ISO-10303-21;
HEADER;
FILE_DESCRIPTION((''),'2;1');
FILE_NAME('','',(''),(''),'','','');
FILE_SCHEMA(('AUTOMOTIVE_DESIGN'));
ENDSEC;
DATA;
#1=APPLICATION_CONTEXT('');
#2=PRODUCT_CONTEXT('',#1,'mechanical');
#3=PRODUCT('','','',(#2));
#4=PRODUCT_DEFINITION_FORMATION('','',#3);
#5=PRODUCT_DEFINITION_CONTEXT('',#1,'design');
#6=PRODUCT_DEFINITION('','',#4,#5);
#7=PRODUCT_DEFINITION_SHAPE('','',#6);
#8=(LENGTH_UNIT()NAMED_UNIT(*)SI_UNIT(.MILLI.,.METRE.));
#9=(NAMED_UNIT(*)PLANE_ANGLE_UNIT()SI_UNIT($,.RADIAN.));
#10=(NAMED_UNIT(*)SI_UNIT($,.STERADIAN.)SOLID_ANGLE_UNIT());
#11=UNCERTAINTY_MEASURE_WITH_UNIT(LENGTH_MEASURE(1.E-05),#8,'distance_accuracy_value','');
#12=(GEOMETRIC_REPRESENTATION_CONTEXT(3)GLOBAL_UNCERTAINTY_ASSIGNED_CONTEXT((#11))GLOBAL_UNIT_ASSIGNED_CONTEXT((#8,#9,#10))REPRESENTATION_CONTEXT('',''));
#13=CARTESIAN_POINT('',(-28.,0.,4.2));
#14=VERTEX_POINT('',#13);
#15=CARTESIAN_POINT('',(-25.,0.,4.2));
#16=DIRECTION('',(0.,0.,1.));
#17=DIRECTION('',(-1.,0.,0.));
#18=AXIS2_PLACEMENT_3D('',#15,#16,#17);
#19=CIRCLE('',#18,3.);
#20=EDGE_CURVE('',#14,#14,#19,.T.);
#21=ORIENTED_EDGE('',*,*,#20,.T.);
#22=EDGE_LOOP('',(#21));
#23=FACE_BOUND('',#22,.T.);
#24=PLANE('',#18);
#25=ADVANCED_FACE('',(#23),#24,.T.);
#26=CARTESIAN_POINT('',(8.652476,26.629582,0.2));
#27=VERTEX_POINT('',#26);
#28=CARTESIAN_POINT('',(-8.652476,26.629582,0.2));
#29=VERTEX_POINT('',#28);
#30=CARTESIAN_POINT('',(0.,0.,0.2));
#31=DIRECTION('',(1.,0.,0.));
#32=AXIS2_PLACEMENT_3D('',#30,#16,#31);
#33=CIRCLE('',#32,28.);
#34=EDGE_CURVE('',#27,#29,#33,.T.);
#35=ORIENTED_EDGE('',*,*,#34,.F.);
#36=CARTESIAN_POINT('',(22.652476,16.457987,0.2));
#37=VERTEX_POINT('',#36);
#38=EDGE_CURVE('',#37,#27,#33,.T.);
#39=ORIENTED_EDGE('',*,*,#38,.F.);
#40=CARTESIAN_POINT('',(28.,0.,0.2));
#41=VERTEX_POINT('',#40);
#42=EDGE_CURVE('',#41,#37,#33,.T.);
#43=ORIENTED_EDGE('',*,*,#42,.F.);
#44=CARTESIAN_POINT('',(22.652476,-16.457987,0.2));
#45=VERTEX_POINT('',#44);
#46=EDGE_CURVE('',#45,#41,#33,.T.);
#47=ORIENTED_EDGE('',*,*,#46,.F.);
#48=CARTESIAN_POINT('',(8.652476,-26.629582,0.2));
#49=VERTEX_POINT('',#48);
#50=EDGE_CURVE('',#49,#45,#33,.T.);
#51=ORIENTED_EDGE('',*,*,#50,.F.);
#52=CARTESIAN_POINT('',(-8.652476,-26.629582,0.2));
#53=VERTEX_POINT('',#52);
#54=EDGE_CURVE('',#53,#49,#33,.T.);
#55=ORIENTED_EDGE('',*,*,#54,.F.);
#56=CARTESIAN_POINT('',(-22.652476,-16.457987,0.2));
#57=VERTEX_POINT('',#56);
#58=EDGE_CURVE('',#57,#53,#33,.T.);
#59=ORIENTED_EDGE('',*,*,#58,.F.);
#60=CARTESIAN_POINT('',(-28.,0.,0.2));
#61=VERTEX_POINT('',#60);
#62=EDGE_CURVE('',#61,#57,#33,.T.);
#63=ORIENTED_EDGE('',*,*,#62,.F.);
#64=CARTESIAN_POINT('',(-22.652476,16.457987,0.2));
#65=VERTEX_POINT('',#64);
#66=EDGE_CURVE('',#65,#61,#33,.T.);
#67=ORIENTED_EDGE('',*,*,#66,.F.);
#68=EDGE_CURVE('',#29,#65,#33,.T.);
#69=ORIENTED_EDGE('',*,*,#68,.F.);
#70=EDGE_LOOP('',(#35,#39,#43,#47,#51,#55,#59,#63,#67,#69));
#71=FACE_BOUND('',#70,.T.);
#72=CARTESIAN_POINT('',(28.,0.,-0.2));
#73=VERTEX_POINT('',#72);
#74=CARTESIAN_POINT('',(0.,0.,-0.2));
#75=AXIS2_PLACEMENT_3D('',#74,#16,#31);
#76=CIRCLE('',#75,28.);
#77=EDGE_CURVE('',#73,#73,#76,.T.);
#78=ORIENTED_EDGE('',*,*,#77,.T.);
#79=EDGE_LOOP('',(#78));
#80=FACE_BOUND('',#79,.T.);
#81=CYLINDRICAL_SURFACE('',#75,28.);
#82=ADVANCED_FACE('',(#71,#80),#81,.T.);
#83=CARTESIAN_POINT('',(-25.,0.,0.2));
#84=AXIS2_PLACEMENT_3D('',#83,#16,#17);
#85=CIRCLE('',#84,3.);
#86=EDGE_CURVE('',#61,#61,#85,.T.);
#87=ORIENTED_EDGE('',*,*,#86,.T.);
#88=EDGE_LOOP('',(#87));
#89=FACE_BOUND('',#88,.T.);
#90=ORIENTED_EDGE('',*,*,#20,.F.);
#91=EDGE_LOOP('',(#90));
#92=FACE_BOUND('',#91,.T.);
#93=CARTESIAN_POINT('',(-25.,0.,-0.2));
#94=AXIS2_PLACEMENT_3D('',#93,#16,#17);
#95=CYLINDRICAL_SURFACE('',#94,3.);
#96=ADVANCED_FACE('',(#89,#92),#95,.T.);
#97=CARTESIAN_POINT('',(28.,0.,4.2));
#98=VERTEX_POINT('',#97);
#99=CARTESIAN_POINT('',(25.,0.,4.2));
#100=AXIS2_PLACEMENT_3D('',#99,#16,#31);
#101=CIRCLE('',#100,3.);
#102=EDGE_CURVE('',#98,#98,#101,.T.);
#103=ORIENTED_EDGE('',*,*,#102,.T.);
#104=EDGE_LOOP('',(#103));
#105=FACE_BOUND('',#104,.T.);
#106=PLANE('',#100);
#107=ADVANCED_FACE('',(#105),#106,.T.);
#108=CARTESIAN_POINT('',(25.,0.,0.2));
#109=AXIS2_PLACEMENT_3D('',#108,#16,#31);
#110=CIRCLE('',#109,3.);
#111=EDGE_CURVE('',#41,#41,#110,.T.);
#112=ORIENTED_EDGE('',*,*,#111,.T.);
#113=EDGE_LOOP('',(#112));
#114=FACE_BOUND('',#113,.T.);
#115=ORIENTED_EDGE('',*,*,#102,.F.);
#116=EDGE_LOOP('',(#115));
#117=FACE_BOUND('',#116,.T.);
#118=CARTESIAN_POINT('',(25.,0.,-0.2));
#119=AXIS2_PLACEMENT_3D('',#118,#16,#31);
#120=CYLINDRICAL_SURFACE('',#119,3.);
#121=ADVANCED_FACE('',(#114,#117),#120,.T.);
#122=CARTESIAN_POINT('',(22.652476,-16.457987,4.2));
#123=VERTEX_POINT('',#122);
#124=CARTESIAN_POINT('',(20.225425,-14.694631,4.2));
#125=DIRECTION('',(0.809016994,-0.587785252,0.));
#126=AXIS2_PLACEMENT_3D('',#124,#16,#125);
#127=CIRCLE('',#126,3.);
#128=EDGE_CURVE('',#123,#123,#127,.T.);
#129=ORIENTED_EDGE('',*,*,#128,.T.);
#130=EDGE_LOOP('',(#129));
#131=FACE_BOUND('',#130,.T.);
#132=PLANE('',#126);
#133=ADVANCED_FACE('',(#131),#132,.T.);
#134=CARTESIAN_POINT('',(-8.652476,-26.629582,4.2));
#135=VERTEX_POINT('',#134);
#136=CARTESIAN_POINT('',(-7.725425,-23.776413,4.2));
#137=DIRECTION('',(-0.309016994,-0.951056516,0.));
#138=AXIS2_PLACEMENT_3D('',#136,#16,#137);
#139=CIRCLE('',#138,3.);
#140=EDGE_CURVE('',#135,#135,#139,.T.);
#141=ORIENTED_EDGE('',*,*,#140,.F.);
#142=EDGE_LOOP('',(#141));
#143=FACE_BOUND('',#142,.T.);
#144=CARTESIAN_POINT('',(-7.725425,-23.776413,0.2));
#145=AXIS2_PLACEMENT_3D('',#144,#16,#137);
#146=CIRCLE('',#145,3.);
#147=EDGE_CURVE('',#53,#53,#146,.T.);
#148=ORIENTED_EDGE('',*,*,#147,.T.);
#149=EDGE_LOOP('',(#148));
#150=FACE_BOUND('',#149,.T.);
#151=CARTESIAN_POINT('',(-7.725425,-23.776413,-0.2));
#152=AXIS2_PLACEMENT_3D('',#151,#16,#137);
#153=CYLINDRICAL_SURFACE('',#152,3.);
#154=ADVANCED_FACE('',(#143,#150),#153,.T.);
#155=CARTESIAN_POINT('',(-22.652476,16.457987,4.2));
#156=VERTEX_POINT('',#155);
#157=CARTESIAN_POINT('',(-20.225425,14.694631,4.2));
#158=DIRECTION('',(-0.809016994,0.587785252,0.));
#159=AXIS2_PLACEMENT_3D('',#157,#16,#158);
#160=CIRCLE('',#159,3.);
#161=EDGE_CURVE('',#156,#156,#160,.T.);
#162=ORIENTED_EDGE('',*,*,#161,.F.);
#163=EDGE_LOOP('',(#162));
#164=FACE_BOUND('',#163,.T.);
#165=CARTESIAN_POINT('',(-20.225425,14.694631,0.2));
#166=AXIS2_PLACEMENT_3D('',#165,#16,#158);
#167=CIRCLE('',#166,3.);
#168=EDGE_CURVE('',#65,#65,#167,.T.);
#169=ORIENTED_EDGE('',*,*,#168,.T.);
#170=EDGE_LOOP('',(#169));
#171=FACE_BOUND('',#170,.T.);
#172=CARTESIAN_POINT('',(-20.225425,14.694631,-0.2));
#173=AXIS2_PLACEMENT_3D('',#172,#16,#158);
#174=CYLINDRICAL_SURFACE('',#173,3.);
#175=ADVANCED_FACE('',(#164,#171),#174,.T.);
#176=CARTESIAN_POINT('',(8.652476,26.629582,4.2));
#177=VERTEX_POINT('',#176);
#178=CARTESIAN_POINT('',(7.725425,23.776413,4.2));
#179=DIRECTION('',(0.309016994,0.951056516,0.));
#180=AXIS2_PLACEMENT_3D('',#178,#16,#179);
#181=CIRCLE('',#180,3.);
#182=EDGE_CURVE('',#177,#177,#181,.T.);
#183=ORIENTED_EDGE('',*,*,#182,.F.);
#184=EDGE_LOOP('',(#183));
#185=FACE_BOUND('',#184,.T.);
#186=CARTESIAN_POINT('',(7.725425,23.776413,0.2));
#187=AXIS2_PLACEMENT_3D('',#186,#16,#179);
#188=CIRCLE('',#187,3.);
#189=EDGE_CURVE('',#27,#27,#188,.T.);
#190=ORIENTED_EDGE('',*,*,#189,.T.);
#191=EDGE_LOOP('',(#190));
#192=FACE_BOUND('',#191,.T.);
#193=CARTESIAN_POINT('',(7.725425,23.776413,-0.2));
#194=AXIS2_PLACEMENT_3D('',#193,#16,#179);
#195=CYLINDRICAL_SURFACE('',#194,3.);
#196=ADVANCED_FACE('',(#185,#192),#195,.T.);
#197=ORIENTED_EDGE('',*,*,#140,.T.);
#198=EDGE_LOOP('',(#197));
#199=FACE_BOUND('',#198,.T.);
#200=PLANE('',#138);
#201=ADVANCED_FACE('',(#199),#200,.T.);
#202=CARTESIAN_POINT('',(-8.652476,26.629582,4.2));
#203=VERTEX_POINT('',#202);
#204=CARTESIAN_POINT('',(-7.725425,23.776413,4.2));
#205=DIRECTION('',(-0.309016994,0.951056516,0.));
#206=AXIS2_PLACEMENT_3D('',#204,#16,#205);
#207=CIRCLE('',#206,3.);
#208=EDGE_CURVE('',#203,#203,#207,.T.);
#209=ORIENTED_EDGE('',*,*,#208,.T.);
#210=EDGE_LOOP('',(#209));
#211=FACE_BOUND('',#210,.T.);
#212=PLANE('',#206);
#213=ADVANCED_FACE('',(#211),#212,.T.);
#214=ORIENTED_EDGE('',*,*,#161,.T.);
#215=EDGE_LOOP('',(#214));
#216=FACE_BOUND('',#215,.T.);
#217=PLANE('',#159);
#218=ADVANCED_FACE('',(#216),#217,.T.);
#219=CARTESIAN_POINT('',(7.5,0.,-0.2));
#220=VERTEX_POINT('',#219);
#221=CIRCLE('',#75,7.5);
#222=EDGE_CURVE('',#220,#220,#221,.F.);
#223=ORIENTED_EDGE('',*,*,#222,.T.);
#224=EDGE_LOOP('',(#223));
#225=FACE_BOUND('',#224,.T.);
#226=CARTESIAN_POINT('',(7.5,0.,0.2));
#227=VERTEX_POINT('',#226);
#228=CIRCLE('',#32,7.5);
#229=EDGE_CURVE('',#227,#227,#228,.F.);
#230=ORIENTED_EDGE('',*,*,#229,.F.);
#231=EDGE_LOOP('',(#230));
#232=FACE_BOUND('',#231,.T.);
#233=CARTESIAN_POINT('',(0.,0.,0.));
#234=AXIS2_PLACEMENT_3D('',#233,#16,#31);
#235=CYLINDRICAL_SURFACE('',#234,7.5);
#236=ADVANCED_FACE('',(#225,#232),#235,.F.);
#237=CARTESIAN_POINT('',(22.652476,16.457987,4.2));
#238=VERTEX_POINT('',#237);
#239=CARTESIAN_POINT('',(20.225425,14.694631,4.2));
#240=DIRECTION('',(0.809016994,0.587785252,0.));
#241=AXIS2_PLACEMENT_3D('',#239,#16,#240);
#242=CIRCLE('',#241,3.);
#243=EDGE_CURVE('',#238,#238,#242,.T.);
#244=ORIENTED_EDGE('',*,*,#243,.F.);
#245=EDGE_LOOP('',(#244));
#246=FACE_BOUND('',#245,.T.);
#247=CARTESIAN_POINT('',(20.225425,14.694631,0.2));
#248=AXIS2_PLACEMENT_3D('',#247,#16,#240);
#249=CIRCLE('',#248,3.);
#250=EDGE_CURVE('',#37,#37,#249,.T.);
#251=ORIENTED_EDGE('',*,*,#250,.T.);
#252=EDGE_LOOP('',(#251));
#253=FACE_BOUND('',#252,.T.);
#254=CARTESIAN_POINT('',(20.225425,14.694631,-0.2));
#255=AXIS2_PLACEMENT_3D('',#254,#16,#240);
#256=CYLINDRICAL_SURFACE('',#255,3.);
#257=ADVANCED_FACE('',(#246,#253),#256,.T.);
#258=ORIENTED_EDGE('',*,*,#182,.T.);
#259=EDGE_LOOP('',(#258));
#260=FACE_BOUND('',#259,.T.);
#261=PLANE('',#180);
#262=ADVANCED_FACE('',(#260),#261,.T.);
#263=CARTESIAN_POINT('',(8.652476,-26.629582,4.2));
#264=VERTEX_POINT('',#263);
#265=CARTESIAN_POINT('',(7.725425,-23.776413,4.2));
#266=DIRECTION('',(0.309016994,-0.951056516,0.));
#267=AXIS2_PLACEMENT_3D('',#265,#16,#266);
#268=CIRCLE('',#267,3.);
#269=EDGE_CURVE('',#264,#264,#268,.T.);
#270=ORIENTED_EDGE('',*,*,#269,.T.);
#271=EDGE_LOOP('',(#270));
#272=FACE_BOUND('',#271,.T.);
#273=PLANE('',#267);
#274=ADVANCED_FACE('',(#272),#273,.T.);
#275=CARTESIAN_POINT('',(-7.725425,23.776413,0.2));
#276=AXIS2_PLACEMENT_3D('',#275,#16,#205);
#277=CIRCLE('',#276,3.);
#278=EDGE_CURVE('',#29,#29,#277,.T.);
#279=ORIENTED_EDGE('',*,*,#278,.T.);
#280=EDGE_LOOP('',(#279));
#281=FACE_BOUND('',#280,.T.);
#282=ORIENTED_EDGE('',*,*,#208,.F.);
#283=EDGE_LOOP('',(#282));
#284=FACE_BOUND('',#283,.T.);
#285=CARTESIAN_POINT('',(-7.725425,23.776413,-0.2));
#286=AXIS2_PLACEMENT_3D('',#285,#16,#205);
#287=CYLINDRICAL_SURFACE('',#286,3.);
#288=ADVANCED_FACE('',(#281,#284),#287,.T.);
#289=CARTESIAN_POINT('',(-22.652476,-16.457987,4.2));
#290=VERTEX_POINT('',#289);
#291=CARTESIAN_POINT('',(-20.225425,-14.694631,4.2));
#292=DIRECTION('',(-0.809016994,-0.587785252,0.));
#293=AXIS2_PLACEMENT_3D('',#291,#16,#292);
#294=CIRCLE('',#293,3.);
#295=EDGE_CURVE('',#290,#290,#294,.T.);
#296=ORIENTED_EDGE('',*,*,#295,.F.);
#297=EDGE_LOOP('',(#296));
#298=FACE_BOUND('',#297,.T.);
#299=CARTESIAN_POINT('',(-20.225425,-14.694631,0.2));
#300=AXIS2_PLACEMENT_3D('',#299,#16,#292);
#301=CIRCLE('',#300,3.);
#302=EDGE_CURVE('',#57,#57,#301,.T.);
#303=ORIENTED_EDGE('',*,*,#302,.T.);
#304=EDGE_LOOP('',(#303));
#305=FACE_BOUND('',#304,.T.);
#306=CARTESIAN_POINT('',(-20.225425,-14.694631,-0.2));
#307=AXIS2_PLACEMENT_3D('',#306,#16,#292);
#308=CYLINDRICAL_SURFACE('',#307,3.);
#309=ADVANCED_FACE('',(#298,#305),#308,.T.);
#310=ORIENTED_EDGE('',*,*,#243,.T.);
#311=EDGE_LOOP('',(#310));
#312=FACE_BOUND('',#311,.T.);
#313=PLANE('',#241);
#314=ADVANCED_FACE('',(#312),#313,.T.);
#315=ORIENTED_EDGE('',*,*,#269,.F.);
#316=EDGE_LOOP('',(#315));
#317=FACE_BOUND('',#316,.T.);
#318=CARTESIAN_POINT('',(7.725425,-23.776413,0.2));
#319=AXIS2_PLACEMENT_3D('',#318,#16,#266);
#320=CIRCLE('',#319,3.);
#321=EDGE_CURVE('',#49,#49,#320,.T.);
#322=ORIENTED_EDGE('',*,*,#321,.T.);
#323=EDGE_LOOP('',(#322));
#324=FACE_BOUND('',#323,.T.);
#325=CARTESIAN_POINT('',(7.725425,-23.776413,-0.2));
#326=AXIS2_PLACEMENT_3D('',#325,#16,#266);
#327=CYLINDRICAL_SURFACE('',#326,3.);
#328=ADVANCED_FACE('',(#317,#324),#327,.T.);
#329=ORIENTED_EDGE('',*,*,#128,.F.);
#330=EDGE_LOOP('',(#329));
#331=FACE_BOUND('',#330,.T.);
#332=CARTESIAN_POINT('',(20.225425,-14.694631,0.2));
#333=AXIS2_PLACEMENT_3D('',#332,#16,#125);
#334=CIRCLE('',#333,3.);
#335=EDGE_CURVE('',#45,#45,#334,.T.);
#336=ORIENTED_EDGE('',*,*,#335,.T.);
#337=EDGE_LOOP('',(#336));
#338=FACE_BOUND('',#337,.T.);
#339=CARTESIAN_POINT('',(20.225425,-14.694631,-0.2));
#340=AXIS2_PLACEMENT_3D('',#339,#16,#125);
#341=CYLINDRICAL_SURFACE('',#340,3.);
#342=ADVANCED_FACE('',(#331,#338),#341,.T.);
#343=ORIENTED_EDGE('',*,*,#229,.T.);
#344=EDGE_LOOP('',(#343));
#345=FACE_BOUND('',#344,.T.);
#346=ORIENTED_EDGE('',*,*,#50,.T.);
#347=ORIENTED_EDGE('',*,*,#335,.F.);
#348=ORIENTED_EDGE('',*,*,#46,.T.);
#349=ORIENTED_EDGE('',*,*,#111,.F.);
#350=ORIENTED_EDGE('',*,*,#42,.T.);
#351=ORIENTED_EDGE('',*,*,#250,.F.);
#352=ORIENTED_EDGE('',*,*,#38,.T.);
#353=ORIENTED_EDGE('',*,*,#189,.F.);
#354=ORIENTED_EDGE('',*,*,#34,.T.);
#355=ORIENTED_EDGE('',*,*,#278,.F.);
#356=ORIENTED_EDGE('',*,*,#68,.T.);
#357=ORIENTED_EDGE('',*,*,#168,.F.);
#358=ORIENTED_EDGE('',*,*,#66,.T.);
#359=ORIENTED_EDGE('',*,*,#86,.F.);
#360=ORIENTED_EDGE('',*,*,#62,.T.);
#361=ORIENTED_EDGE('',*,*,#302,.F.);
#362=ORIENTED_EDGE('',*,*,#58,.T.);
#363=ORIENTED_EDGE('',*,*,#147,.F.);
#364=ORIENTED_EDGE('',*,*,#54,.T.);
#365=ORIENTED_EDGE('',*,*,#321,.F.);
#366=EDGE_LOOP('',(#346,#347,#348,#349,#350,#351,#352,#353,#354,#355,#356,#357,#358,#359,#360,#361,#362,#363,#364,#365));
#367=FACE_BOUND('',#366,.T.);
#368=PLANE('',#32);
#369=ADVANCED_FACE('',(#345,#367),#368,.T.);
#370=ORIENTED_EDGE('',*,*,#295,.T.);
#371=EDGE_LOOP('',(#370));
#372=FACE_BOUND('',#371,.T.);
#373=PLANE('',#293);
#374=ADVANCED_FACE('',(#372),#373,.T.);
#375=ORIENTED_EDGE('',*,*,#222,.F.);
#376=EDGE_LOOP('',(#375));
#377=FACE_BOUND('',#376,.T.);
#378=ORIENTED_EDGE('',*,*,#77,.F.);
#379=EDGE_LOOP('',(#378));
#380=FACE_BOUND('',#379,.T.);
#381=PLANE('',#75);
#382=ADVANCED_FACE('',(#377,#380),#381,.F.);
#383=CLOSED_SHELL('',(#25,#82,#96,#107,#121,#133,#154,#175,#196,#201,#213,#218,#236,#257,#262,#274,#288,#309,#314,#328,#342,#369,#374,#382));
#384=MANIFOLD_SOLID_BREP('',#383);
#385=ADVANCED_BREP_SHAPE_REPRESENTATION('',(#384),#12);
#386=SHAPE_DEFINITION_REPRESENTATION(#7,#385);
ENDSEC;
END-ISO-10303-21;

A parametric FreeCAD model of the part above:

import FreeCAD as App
import Part
import Sketcher

V = App.Vector
Q = App.Units.Quantity

doc = App.newDocument("Part")
body = doc.addObject("PartDesign::Body", "Body")

sketch1 = doc.addObject("Sketcher::SketchObject", "Sketch")
body.addObject(sketch1)
sketch1.AttachmentSupport = (doc.XY_Plane, [""])
sketch1.MapMode = "FlatFace"
sketch1.addGeometry(Part.Circle(V(0, 0, 0), V(0, 0, 1), 28), False)
sketch1.addConstraint(Sketcher.Constraint("Coincident", 0, 3, -1, 1))
sketch1.addConstraint(Sketcher.Constraint("Diameter", 0, Q("56 mm")))
pad1 = doc.addObject("PartDesign::Pad", "Pad")
body.addObject(pad1)
pad1.Profile = sketch1
pad1.Type = "TwoLengths"
pad1.Length = 0.2
pad1.Length2 = 0.2

sketch2 = doc.addObject("Sketcher::SketchObject", "Sketch001")
body.addObject(sketch2)
sketch2.AttachmentSupport = (doc.XY_Plane, [""])
sketch2.MapMode = "FlatFace"
sketch2.AttachmentOffset = App.Placement(V(0, 0, -0.2), App.Rotation())
sketch2.addGeometry(Part.Circle(V(25, 0, 0), V(0, 0, 1), 3), False)
sketch2.addConstraint(Sketcher.Constraint("PointOnObject", 0, 3, -1))
sketch2.addConstraint(Sketcher.Constraint("Diameter", 0, Q("6 mm")))
sketch2.addConstraint(Sketcher.Constraint("DistanceX", -1, 1, 0, 3, Q("25 mm")))
pad2 = doc.addObject("PartDesign::Pad", "Pad001")
body.addObject(pad2)
pad2.Profile = sketch2
pad2.Length = 4.4
doc.recompute()

polarpattern = doc.addObject("PartDesign::PolarPattern", "PolarPattern")
body.addObject(polarpattern)
polarpattern.Originals = [pad2]
polarpattern.Axis = (doc.Z_Axis, [""])
polarpattern.Angle = 360
polarpattern.Occurrences = 10
body.Tip = polarpattern

sketch3 = doc.addObject("Sketcher::SketchObject", "Sketch002")
body.addObject(sketch3)
sketch3.AttachmentSupport = (doc.YZ_Plane, [""])
sketch3.MapMode = "FlatFace"
sketch3.addGeometry(Part.LineSegment(V(7.5, 2, 0), V(0, 2, 0)), False)
sketch3.addGeometry(Part.LineSegment(V(0, 2, 0), V(0, -2, 0)), False)
sketch3.addGeometry(Part.LineSegment(V(0, -2, 0), V(7.5, -2, 0)), False)
sketch3.addGeometry(Part.LineSegment(V(7.5, -2, 0), V(7.5, 2, 0)), False)
sketch3.addConstraint(Sketcher.Constraint("Coincident", 0, 2, 1, 1))
sketch3.addConstraint(Sketcher.Constraint("Coincident", 1, 2, 2, 1))
sketch3.addConstraint(Sketcher.Constraint("Coincident", 2, 2, 3, 1))
sketch3.addConstraint(Sketcher.Constraint("Coincident", 3, 2, 0, 1))
sketch3.addConstraint(Sketcher.Constraint("Horizontal", 0))
sketch3.addConstraint(Sketcher.Constraint("Vertical", 1))
sketch3.addConstraint(Sketcher.Constraint("Horizontal", 2))
sketch3.addConstraint(Sketcher.Constraint("Vertical", 3))
sketch3.addConstraint(Sketcher.Constraint("Symmetric", 0, 2, 1, 2, -1, 1))
sketch3.addConstraint(Sketcher.Constraint("DistanceY", 1, 2, 1, 1, Q("4 mm")))
sketch3.addConstraint(Sketcher.Constraint("DistanceX", 0, 2, 0, 1, Q("7.5 mm")))
groove = doc.addObject("PartDesign::Groove", "Groove")
body.addObject(groove)
groove.Profile = sketch3
groove.ReferenceAxis = (sketch3, ["V_Axis"])
groove.Angle = 360

doc.recompute()
